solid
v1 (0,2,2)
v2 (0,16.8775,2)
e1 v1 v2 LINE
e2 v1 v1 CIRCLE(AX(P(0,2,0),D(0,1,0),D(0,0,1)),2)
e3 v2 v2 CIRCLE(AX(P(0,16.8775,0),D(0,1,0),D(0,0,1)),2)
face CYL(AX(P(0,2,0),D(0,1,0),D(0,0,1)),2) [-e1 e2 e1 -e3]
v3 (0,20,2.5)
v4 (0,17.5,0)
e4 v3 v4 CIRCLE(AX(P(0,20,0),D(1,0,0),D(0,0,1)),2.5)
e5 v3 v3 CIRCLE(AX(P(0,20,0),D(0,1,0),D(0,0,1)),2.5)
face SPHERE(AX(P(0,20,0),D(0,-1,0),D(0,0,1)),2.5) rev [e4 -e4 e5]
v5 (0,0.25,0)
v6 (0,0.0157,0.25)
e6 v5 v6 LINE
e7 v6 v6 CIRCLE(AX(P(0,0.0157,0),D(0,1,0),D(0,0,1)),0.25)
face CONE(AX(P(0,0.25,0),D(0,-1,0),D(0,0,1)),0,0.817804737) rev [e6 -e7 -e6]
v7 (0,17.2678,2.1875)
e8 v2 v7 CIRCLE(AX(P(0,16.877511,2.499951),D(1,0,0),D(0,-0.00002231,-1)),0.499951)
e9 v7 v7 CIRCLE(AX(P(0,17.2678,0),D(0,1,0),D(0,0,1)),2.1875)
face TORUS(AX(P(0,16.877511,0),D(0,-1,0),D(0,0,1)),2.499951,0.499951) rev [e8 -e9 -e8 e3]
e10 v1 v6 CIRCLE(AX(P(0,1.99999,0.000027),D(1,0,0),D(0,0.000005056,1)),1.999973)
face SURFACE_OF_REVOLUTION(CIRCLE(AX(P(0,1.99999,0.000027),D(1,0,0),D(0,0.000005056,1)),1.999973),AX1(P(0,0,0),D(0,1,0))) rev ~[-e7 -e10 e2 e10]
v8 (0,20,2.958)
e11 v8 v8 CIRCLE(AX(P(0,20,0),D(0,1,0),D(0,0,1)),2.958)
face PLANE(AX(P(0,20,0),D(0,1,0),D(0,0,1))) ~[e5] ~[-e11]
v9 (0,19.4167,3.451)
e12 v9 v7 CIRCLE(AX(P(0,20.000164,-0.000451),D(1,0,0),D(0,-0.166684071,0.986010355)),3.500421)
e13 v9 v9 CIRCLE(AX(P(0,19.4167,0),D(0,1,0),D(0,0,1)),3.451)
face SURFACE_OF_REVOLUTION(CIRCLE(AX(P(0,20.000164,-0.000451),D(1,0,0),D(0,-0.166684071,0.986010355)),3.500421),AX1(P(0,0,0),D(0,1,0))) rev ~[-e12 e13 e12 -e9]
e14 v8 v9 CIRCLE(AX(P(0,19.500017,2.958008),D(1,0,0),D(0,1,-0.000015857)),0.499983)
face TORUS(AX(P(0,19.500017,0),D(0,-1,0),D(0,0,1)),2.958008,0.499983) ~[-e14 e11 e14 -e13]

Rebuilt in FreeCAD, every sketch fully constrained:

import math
import FreeCAD as App
import Part
import Sketcher
from FreeCAD import Vector
Q = App.Units.Quantity

doc = App.newDocument("Part")
params = doc.addObject("Spreadsheet::Sheet", "Params")
for row, (alias, value) in enumerate([
    ("sketch1_radius", "2 mm"),
    ("sketch1_radius2", "2.5 mm"),
    ("sketch1_radius3", "3.5 mm"),
    ("revolution_angle", "360 deg"),
], start=1):
    params.set(f"A{row}", alias)
    params.set(f"B{row}", "=" + value)
    params.setAlias(f"B{row}", alias)

body = doc.addObject("PartDesign::Body", "Body")

sketch1 = doc.addObject("Sketcher::SketchObject", "Sketch")
body.addObject(sketch1)
sketch1.AttachmentSupport = (doc.YZ_Plane, [""])
sketch1.MapMode = "FlatFace"
sketch1.addGeometry([
    Part.ArcOfCircle(Part.Circle(Vector(20, 0, 0), Vector(0, 0, 1), 2.5), math.radians(90), math.radians(180)),
    Part.LineSegment(Vector(20, 2.5, 0), Vector(20, 2.96, 0)),
    Part.ArcOfCircle(Part.Circle(Vector(19.5, 2.96, 0), Vector(0, 0, 1), 0.5), math.radians(0), math.radians(100)),
    Part.ArcOfCircle(Part.Circle(Vector(20, 0, 0), Vector(0, 0, 1), 3.5), math.radians(100), math.radians(141)),
    Part.ArcOfCircle(Part.Circle(Vector(16.88, 2.5, 0), Vector(0, 0, 1), 0.5), math.radians(-90), math.radians(-39)),
    Part.LineSegment(Vector(16.88, 2, 0), Vector(2, 2, 0)),
    Part.ArcOfCircle(Part.Circle(Vector(2, 0, 0), Vector(0, 0, 1), 2), math.radians(90), math.radians(173)),
    Part.LineSegment(Vector(0.02, 0.25, 0), Vector(0.25, 0, 0)),
    Part.LineSegment(Vector(0.25, 0, 0), Vector(17.5, 0, 0)),
], False)
sketch1.addConstraint([
    Sketcher.Constraint("Coincident", 0, 1, 1, 1),
    Sketcher.Constraint("Tangent", 1, 2, 2, 1),
    Sketcher.Constraint("Tangent", 2, 2, 3, 1),
    Sketcher.Constraint("Tangent", 3, 2, 4, 2),
    Sketcher.Constraint("Tangent", 4, 1, 5, 1),
    Sketcher.Constraint("Tangent", 5, 2, 6, 1),
    Sketcher.Constraint("Coincident", 6, 2, 7, 1),
    Sketcher.Constraint("Coincident", 7, 2, 8, 1),
    Sketcher.Constraint("Coincident", 8, 2, 0, 2),
    Sketcher.Constraint("Vertical", 1),
    Sketcher.Constraint("Horizontal", 5),
    Sketcher.Constraint("Horizontal", 8),
    Sketcher.Constraint("Coincident", 3, 3, 0, 3),
    Sketcher.Constraint("Equal", 2, 4),
    Sketcher.Constraint("PointOnObject", 0, 3, -1),
    Sketcher.Constraint("PointOnObject", 6, 3, -1),
    Sketcher.Constraint("PointOnObject", 7, 2, -1),
    Sketcher.Constraint("Horizontal", 4, 3, 0, 1),
    Sketcher.Constraint("Vertical", 3, 3, 0, 1),
    Sketcher.Constraint("Radius", 6, Q("2 mm")),
    Sketcher.Constraint("Radius", 0, Q("2.5 mm")),
    Sketcher.Constraint("Radius", 3, Q("3.5 mm")),
    Sketcher.Constraint("DistanceX", -1, 1, 0, 3, Q("20 mm")),
    Sketcher.Constraint("DistanceX", -1, 1, 6, 3, Q("2 mm")),
    Sketcher.Constraint("DistanceY", -1, 1, 6, 2, Q("0.25 mm")),
    Sketcher.Constraint("DistanceX", -1, 1, 7, 2, Q("0.25 mm")),
])
sketch1.setExpression("Constraints[19]", "Params.sketch1_radius")
sketch1.setExpression("Constraints[20]", "Params.sketch1_radius2")
sketch1.setExpression("Constraints[21]", "Params.sketch1_radius3")
revolution = doc.addObject("PartDesign::Revolution", "Revolution")
body.addObject(revolution)
revolution.Profile = sketch1
revolution.ReferenceAxis = (sketch1, ["H_Axis"])
revolution.setExpression("Angle", "Params.revolution_angle")

doc.recompute()
